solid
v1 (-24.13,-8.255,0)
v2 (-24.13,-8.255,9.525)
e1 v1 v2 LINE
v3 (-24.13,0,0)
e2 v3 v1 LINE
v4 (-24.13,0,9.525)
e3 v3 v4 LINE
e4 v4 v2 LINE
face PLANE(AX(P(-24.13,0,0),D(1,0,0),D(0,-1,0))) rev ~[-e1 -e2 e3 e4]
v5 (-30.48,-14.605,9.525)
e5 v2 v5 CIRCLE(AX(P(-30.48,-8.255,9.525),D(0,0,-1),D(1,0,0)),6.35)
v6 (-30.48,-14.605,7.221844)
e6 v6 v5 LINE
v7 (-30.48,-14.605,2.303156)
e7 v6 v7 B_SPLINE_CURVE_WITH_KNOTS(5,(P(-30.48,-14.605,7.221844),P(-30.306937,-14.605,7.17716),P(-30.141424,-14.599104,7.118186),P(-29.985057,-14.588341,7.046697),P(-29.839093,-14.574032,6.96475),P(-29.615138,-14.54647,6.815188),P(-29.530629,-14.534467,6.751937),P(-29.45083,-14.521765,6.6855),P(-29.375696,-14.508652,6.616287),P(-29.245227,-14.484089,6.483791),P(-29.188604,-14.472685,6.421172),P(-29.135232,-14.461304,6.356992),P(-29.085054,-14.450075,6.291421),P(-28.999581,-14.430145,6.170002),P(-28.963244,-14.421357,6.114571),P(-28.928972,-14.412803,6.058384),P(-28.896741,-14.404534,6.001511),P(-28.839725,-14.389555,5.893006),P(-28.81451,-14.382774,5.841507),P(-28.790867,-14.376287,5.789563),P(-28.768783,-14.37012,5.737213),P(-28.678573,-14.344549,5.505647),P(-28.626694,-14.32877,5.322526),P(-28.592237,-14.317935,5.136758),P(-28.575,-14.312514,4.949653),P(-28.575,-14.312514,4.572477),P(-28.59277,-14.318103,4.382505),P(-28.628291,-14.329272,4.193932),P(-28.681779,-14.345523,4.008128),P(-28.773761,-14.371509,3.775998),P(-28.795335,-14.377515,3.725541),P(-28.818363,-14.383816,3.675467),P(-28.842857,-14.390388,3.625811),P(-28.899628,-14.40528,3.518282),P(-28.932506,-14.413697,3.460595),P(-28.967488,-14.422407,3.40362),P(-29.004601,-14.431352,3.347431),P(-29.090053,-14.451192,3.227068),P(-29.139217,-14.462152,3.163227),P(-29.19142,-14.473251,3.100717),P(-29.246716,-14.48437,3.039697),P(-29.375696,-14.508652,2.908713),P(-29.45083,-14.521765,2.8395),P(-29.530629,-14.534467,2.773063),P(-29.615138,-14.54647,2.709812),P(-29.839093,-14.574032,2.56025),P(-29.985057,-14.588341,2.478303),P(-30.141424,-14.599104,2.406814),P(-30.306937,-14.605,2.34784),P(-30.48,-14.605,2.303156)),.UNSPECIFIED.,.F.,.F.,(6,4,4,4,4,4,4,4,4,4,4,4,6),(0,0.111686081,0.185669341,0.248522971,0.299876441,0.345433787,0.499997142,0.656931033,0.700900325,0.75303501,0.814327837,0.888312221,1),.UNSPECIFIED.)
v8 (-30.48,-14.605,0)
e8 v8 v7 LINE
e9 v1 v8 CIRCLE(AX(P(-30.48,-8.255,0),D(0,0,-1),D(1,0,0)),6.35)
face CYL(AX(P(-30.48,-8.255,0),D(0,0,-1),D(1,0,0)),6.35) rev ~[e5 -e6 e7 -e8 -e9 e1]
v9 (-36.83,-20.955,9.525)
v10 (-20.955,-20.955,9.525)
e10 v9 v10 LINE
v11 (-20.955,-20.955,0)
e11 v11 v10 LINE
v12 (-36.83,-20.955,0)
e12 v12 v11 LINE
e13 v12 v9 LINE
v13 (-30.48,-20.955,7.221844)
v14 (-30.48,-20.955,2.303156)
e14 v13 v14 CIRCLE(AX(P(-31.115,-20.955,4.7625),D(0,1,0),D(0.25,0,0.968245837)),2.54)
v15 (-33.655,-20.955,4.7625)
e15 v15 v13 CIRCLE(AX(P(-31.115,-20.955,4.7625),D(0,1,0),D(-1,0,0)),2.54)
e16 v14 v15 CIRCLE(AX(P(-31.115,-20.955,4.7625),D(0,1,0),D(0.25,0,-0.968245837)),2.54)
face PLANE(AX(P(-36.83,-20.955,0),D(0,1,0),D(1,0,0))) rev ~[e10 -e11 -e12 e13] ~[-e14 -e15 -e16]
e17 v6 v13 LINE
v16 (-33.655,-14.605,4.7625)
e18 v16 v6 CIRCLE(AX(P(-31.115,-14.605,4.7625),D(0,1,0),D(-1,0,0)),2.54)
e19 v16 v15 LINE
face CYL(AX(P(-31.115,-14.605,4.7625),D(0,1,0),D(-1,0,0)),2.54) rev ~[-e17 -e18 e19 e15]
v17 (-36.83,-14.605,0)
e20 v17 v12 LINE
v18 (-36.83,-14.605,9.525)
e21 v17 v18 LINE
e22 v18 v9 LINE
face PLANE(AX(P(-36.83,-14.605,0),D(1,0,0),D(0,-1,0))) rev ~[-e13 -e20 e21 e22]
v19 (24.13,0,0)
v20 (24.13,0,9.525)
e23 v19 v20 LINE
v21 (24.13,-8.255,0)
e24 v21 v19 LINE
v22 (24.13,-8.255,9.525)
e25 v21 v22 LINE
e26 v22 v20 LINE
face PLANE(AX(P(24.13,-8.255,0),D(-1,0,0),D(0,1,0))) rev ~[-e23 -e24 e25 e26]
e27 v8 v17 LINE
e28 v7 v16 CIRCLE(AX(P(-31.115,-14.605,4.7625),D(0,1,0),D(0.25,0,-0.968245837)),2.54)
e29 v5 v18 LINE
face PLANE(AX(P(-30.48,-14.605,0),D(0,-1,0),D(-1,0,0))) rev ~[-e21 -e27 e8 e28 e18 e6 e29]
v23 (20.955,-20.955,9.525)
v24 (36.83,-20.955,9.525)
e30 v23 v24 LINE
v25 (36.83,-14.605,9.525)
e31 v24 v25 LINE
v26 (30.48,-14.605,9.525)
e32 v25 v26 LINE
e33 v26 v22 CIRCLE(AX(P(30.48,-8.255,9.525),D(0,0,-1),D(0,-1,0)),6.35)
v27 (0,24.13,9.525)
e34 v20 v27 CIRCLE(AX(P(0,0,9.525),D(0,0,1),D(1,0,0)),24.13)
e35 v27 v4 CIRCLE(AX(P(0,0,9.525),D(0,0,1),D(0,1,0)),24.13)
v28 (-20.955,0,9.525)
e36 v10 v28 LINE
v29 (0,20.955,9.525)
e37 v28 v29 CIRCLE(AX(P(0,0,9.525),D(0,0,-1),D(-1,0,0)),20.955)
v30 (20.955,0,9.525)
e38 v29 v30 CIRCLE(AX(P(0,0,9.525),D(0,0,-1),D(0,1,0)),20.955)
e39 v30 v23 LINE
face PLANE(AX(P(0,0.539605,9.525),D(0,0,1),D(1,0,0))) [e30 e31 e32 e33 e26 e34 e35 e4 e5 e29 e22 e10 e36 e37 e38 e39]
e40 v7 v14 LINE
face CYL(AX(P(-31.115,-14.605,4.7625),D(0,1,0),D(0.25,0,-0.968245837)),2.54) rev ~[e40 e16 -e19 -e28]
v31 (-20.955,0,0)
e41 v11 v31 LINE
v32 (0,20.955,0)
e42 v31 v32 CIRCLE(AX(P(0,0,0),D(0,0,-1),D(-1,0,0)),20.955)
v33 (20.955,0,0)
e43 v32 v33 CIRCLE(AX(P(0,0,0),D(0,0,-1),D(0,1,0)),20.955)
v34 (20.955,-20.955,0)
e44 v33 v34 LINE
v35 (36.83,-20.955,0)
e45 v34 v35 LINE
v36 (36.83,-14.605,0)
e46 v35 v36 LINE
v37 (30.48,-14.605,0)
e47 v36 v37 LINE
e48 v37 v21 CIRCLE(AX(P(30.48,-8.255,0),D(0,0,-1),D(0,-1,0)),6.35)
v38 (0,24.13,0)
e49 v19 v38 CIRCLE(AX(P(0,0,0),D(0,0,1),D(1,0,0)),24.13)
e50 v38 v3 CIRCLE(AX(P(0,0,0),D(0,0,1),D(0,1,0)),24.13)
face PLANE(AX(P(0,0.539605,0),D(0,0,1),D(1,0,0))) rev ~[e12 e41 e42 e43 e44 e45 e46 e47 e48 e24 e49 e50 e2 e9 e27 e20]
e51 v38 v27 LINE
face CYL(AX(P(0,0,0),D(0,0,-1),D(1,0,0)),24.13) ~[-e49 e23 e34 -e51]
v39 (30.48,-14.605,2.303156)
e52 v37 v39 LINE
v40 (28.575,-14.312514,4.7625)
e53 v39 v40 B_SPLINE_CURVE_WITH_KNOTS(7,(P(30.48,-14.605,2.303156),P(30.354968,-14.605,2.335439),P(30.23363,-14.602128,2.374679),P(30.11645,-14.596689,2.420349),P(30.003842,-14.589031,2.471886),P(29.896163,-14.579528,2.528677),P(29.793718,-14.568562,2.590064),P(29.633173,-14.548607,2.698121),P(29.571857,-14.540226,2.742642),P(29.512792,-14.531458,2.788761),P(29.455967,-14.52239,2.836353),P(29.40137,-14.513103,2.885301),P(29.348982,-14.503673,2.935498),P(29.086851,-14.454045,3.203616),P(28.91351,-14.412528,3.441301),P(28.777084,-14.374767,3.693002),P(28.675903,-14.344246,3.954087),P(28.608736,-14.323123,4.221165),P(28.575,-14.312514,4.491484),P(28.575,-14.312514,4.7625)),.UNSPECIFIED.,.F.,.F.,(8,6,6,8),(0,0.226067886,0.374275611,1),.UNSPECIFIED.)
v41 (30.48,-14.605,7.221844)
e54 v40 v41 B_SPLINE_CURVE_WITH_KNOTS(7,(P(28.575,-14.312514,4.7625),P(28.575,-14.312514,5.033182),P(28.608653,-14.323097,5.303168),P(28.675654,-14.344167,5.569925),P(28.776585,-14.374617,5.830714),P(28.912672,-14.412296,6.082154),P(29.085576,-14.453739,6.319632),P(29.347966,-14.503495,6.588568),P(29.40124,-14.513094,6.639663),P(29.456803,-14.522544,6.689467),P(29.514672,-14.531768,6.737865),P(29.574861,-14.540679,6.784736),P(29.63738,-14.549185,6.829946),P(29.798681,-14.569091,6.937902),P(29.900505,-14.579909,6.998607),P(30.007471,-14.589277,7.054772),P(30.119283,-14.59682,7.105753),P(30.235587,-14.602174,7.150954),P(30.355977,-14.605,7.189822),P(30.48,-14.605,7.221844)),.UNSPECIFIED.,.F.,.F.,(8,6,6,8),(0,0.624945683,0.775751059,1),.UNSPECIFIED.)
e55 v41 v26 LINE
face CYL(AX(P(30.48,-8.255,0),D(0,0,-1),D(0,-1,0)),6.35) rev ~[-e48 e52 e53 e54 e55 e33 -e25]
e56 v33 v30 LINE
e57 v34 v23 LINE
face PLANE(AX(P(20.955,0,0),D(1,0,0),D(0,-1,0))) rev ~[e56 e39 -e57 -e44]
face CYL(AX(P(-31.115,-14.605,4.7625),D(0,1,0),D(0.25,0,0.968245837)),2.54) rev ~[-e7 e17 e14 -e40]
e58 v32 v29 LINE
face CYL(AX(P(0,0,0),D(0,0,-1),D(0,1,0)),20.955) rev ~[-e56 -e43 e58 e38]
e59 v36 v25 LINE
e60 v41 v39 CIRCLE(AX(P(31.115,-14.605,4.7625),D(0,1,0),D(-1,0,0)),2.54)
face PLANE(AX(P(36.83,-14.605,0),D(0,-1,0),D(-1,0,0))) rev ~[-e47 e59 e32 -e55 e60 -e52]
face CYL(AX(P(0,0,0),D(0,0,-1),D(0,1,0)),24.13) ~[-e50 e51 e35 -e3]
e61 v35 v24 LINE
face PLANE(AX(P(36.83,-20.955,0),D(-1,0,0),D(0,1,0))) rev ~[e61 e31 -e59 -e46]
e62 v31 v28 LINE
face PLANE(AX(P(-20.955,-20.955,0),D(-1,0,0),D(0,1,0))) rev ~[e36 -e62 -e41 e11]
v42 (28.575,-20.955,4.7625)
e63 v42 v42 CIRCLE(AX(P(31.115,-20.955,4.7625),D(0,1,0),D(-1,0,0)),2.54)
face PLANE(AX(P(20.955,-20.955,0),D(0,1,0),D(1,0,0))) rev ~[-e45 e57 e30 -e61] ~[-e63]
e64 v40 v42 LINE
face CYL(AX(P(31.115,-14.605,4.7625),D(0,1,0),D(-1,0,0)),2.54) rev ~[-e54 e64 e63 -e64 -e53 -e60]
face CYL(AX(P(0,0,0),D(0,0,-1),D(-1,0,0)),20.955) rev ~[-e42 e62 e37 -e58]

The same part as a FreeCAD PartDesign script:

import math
import FreeCAD as App
import Part
import Sketcher
from FreeCAD import Vector
Q = App.Units.Quantity

doc = App.newDocument("Part")
params = doc.addObject("Spreadsheet::Sheet", "Params")
for row, (alias, value) in enumerate([
    ("sketch1_radius", "0.25 in"),
    ("sketch1_radius2", "0.95 in"),
    ("sketch1_radius3", "0.825 in"),
    ("sketch1_width", "0.25 in"),
    ("sketch1_height", "0.825 in"),
    ("pad1_length", "0.375 in"),
    ("sketch2_diameter", "0.2 in"),
], start=1):
    params.set(f"A{row}", alias)
    params.set(f"B{row}", "=" + value)
    params.setAlias(f"B{row}", alias)

body = doc.addObject("PartDesign::Body", "Body")

# Sketch on XY plane
sketch1 = body.newObject("Sketcher::SketchObject", "Sketch")
sketch1.AttachmentSupport = (doc.getObject("XY_Plane"), [""])
sketch1.MapMode = "FlatFace"
sketch1.addGeometry([
    Part.ArcOfCircle(Part.Circle(Vector(0, 0, 0), Vector(0, 0, 1), 20.955), math.radians(90), math.radians(180)),  # 0
    Part.ArcOfCircle(Part.Circle(Vector(0, 0, 0), Vector(0, 0, 1), 20.955), math.radians(0), math.radians(90)),  # 1
    Part.LineSegment(Vector(20.955, 0, 0), Vector(20.955, -20.955, 0)),  # 2
    Part.LineSegment(Vector(20.955, -20.955, 0), Vector(36.83, -20.955, 0)),  # 3
    Part.LineSegment(Vector(36.83, -20.955, 0), Vector(36.83, -14.605, 0)),  # 4
    Part.LineSegment(Vector(36.83, -14.605, 0), Vector(30.48, -14.605, 0)),  # 5
    Part.ArcOfCircle(Part.Circle(Vector(30.48, -8.255, 0), Vector(0, 0, 1), 6.35), math.radians(180), math.radians(270)),  # 6
    Part.LineSegment(Vector(24.13, -8.255, 0), Vector(24.13, 0, 0)),  # 7
    Part.ArcOfCircle(Part.Circle(Vector(0, 0, 0), Vector(0, 0, 1), 24.13), math.radians(0), math.radians(90)),  # 8
    Part.ArcOfCircle(Part.Circle(Vector(0, 0, 0), Vector(0, 0, 1), 24.13), math.radians(90), math.radians(180)),  # 9
    Part.LineSegment(Vector(-24.13, 0, 0), Vector(-24.13, -8.255, 0)),  # 10
    Part.ArcOfCircle(Part.Circle(Vector(-30.48, -8.255, 0), Vector(0, 0, 1), 6.35), math.radians(-90), math.radians(0)),  # 11
    Part.LineSegment(Vector(-30.48, -14.605, 0), Vector(-36.83, -14.605, 0)),  # 12
    Part.LineSegment(Vector(-36.83, -14.605, 0), Vector(-36.83, -20.955, 0)),  # 13
    Part.LineSegment(Vector(-36.83, -20.955, 0), Vector(-20.955, -20.955, 0)),  # 14
    Part.LineSegment(Vector(-20.955, -20.955, 0), Vector(-20.955, 0, 0)),  # 15
], False)
sketch1.addConstraint([
    Sketcher.Constraint("Tangent", 0, 1, 1, 2),
    Sketcher.Constraint("Tangent", 1, 1, 2, 1),
    Sketcher.Constraint("Coincident", 2, 2, 3, 1),
    Sketcher.Constraint("Coincident", 3, 2, 4, 1),
    Sketcher.Constraint("Coincident", 4, 2, 5, 1),
    Sketcher.Constraint("Tangent", 5, 2, 6, 2),
    Sketcher.Constraint("Tangent", 6, 1, 7, 1),
    Sketcher.Constraint("Tangent", 7, 2, 8, 1),
    Sketcher.Constraint("Tangent", 8, 2, 9, 1),
    Sketcher.Constraint("Tangent", 9, 2, 10, 1),
    Sketcher.Constraint("Tangent", 10, 2, 11, 2),
    Sketcher.Constraint("Tangent", 11, 1, 12, 1),
    Sketcher.Constraint("Coincident", 12, 2, 13, 1),
    Sketcher.Constraint("Coincident", 13, 2, 14, 1),
    Sketcher.Constraint("Coincident", 14, 2, 15, 1),
    Sketcher.Constraint("Tangent", 15, 2, 0, 2),
    Sketcher.Constraint("Vertical", 2),
    Sketcher.Constraint("Horizontal", 3),
    Sketcher.Constraint("Vertical", 4),
    Sketcher.Constraint("Horizontal", 5),
    Sketcher.Constraint("Vertical", 7),
    Sketcher.Constraint("Vertical", 10),
    Sketcher.Constraint("Horizontal", 12),
    Sketcher.Constraint("Vertical", 13),
    Sketcher.Constraint("Horizontal", 14),
    Sketcher.Constraint("Vertical", 15),
    Sketcher.Constraint("Coincident", 0, 3, -1, 1),
    Sketcher.Constraint("Coincident", 8, 3, -1, 1),
    Sketcher.Constraint("Equal", 0, 1),
    Sketcher.Constraint("Equal", 8, 9),
    Sketcher.Constraint("Equal", 6, 11),
    Sketcher.Constraint("Symmetric", 4, 2, 12, 2, -2),
    Sketcher.Constraint("PointOnObject", 0, 1, -2),
    Sketcher.Constraint("PointOnObject", 8, 2, -2),
    Sketcher.Constraint("Horizontal", 3, 2, 13, 2),
    Sketcher.Constraint("Equal", 12, 4),
    Sketcher.Constraint("Radius", 6, Q("0.25 in")),
    Sketcher.Constraint("Radius", 8, Q("0.95 in")),
    Sketcher.Constraint("Radius", 0, Q("0.825 in")),
    Sketcher.Constraint("DistanceX", 5, 2, 5, 1, Q("0.25 in")),
    Sketcher.Constraint("DistanceY", 2, 2, 2, 1, Q("0.825 in")),
])
sketch1.setExpression("Constraints[36]", "Params.sketch1_radius")
sketch1.setExpression("Constraints[37]", "Params.sketch1_radius2")
sketch1.setExpression("Constraints[38]", "Params.sketch1_radius3")
sketch1.setExpression("Constraints[39]", "Params.sketch1_width")
sketch1.setExpression("Constraints[40]", "Params.sketch1_height")
pad1 = body.newObject("PartDesign::Pad", "Pad")
pad1.Profile = sketch1
pad1.setExpression("Length", "Params.pad1_length")

# Sketch on XZ plane
sketch2 = body.newObject("Sketcher::SketchObject", "Sketch001")
sketch2.AttachmentSupport = (doc.getObject("XZ_Plane"), [""])
sketch2.MapMode = "FlatFace"
sketch2.AttachmentOffset = App.Placement(Vector(0, 0, 0.575 * 25.4), App.Rotation())
sketch2.addGeometry([
    Part.Circle(Vector(31.115, 4.7625, 0), Vector(0, 0, 1), 2.54),
    Part.ArcOfCircle(Part.Circle(Vector(-31.115, 4.7625, 0), Vector(0, 0, 1), 2.54), math.radians(-75.522488), math.radians(75.522488)),
    Part.ArcOfCircle(Part.Circle(Vector(-31.115, 4.7625, 0), Vector(0, 0, 1), 2.54), math.radians(180), math.radians(284.477512)),
    Part.ArcOfCircle(Part.Circle(Vector(-31.115, 4.7625, 0), Vector(0, 0, 1), 2.54), math.radians(75.522488), math.radians(180)),
], False)
sketch2.addConstraint([
    Sketcher.Constraint("Tangent", 1, 1, 2, 2),
    Sketcher.Constraint("Tangent", 2, 1, 3, 2),
    Sketcher.Constraint("Tangent", 3, 1, 1, 2),
    Sketcher.Constraint("Equal", 0, 1),
    Sketcher.Constraint("Symmetric", 0, 3, 1, 3, -2),
    Sketcher.Constraint("Horizontal", 3, 3, 2, 1),
    Sketcher.Constraint("Vertical", 1, 1, 3, 1),
    Sketcher.Constraint("Diameter", 0, Q("0.2 in")),
    Sketcher.Constraint("DistanceX", 1, 1, -1, 1, Q("1.2 in")),
    Sketcher.Constraint("DistanceX", 1, 3, 0, 3, Q("2.45 in")),
    Sketcher.Constraint("DistanceY", -1, 1, 0, 3, Q("0.1875 in")),
])
sketch2.setExpression("Constraints[7]", "Params.sketch2_diameter")
pocket1 = body.newObject("PartDesign::Pocket", "Pocket")
pocket1.Profile = sketch2
pocket1.Type = "ThroughAll"
pocket1.Midplane = True

doc.recompute()
